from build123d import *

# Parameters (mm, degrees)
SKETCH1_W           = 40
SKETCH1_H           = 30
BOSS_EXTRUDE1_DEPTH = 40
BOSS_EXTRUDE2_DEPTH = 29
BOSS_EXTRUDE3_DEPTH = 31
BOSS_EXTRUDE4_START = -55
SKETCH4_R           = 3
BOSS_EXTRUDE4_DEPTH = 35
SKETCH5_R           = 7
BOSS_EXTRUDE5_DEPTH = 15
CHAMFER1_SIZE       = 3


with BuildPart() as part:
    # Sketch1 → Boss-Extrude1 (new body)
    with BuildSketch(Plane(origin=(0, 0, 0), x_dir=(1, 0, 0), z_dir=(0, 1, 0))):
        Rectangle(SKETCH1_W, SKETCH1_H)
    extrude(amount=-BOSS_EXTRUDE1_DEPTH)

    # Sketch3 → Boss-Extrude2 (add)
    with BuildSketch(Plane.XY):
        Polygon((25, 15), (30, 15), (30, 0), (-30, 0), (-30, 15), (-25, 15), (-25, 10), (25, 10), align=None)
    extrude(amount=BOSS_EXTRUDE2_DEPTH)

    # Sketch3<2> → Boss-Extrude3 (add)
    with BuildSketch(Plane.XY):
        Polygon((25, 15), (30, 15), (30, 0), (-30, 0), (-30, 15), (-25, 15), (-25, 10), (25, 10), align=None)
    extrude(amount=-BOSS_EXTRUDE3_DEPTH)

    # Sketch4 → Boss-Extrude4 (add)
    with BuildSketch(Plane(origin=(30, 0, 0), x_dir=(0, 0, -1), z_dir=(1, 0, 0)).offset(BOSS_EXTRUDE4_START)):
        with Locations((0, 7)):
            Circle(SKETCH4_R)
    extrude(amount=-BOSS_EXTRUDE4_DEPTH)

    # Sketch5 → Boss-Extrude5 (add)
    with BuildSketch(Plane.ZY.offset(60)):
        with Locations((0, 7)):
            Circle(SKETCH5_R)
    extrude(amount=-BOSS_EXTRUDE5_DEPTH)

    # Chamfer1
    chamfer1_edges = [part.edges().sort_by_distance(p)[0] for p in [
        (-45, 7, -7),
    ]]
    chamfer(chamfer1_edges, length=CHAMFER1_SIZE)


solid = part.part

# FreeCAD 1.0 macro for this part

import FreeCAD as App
import Part
import Sketcher

V = App.Vector


def edges_at(feature, points):
    """Names of the edges that pass closest to the given points."""
    edges = feature.Shape.Edges
    near = lambda p: min(range(len(edges)), key=lambda i: edges[i].distToShape(Part.Vertex(*p))[0])
    return sorted({f"Edge{near(p) + 1}" for p in points})


def add_polygon(sketch, points):
    """Adds a closed chain of lines whose ends are joined by coincident constraints."""
    first, n = sketch.GeometryCount, len(points)
    for a, b in zip(points, points[1:] + points[:1]):
        sketch.addGeometry(Part.LineSegment(App.Vector(*a, 0), App.Vector(*b, 0)), False)
    for i in range(n):
        sketch.addConstraint(Sketcher.Constraint("Coincident", first + i, 2, first + (i + 1) % n, 1))

doc = App.newDocument("Part")
body = doc.addObject("PartDesign::Body", "Body")

sketch1 = body.newObject("Sketcher::SketchObject", "Sketch")
sketch1.AttachmentSupport = (doc.getObject("XZ_Plane"), [""])
sketch1.MapMode = "FlatFace"
add_polygon(sketch1, [(-20, -15), (-20, 15), (20, 15), (20, -15)])
sketch1.addConstraint(Sketcher.Constraint("Vertical", 0))
sketch1.addConstraint(Sketcher.Constraint("Horizontal", 1))
sketch1.addConstraint(Sketcher.Constraint("Vertical", 2))
sketch1.addConstraint(Sketcher.Constraint("Horizontal", 3))
sketch1.addConstraint(Sketcher.Constraint("Symmetric", 0, 2, 2, 2, -1, 1))
sketch1.addConstraint(Sketcher.Constraint("DistanceX", 1, 1, 1, 2, 40.0))
sketch1.addConstraint(Sketcher.Constraint("DistanceY", 0, 1, 0, 2, 30.0))
pad1 = body.newObject("PartDesign::Pad", "Pad")
pad1.Profile = sketch1
pad1.Length = 40

sketch2 = body.newObject("Sketcher::SketchObject", "Sketch001")
sketch2.AttachmentSupport = (doc.getObject("XY_Plane"), [""])
sketch2.MapMode = "FlatFace"
add_polygon(sketch2, [(30, 15), (25, 15), (25, 10), (-25, 10), (-25, 15), (-30, 15), (-30, 0), (30, 0)])
sketch2.addConstraint(Sketcher.Constraint("Horizontal", 0))
sketch2.addConstraint(Sketcher.Constraint("Vertical", 1))
sketch2.addConstraint(Sketcher.Constraint("Horizontal", 2))
sketch2.addConstraint(Sketcher.Constraint("Vertical", 3))
sketch2.addConstraint(Sketcher.Constraint("Horizontal", 4))
sketch2.addConstraint(Sketcher.Constraint("Vertical", 5))
sketch2.addConstraint(Sketcher.Constraint("Horizontal", 6))
sketch2.addConstraint(Sketcher.Constraint("Vertical", 7))
sketch2.addConstraint(Sketcher.Constraint("Symmetric", 5, 2, 6, 2, -1, 1))
sketch2.addConstraint(Sketcher.Constraint("Symmetric", 0, 2, 3, 2, -2))
sketch2.addConstraint(Sketcher.Constraint("Equal", 4, 1))
sketch2.addConstraint(Sketcher.Constraint("DistanceX", 0, 2, 0, 1, 5.0))
sketch2.addConstraint(Sketcher.Constraint("DistanceX", 2, 2, 2, 1, 50.0))
sketch2.addConstraint(Sketcher.Constraint("DistanceY", 5, 2, 5, 1, 15.0))
pad2 = body.newObject("PartDesign::Pad", "Pad001")
pad2.Profile = sketch2
pad2.Length = 29

sketch3 = body.newObject("Sketcher::SketchObject", "Sketch002")
sketch3.AttachmentSupport = (doc.getObject("XY_Plane"), [""])
sketch3.MapMode = "FlatFace"
add_polygon(sketch3, [(30, 15), (25, 15), (25, 10), (-25, 10), (-25, 15), (-30, 15), (-30, 0), (30, 0)])
sketch3.addConstraint(Sketcher.Constraint("Horizontal", 0))
sketch3.addConstraint(Sketcher.Constraint("Vertical", 1))
sketch3.addConstraint(Sketcher.Constraint("Horizontal", 2))
sketch3.addConstraint(Sketcher.Constraint("Vertical", 3))
sketch3.addConstraint(Sketcher.Constraint("Horizontal", 4))
sketch3.addConstraint(Sketcher.Constraint("Vertical", 5))
sketch3.addConstraint(Sketcher.Constraint("Horizontal", 6))
sketch3.addConstraint(Sketcher.Constraint("Vertical", 7))
sketch3.addConstraint(Sketcher.Constraint("Symmetric", 5, 2, 6, 2, -1, 1))
sketch3.addConstraint(Sketcher.Constraint("Symmetric", 0, 2, 3, 2, -2))
sketch3.addConstraint(Sketcher.Constraint("Equal", 4, 1))
sketch3.addConstraint(Sketcher.Constraint("DistanceX", 0, 2, 0, 1, 5.0))
sketch3.addConstraint(Sketcher.Constraint("DistanceX", 2, 2, 2, 1, 50.0))
sketch3.addConstraint(Sketcher.Constraint("DistanceY", 5, 2, 5, 1, 15.0))
pad3 = body.newObject("PartDesign::Pad", "Pad002")
pad3.Profile = sketch3
pad3.Length = 31
pad3.Reversed = True

sketch4 = body.newObject("Sketcher::SketchObject", "Sketch003")
sketch4.AttachmentSupport = (doc.getObject("YZ_Plane"), [""])
sketch4.MapMode = "FlatFace"
sketch4.AttachmentOffset = App.Placement(V(0, 0, -25), App.Rotation())
sketch4.addGeometry(Part.Circle(V(7, 0, 0), V(0, 0, 1), 3), False)
sketch4.addConstraint(Sketcher.Constraint("PointOnObject", 0, 3, -1))
sketch4.addConstraint(Sketcher.Constraint("Diameter", 0, 6.0))
sketch4.addConstraint(Sketcher.Constraint("DistanceX", -1, 1, 0, 3, 7.0))
pad4 = body.newObject("PartDesign::Pad", "Pad003")
pad4.Profile = sketch4
pad4.Length = 35
pad4.Reversed = True

sketch5 = body.newObject("Sketcher::SketchObject", "Sketch004")
sketch5.AttachmentSupport = (doc.getObject("YZ_Plane"), [""])
sketch5.MapMode = "FlatFace"
sketch5.AttachmentOffset = App.Placement(V(0, 0, -60), App.Rotation())
sketch5.addGeometry(Part.Circle(V(7, 0, 0), V(0, 0, 1), 7), False)
sketch5.addConstraint(Sketcher.Constraint("PointOnObject", 0, 3, -1))
sketch5.addConstraint(Sketcher.Constraint("Diameter", 0, 14.0))
sketch5.addConstraint(Sketcher.Constraint("DistanceX", -1, 1, 0, 3, 7.0))
pad5 = body.newObject("PartDesign::Pad", "Pad004")
pad5.Profile = sketch5
pad5.Length = 15
doc.recompute()

chamfer = body.newObject("PartDesign::Chamfer", "Chamfer")
chamfer.Base = (pad5, edges_at(pad5, [(-45, 7, -7)]))
chamfer.Size = 3

doc.recompute()
